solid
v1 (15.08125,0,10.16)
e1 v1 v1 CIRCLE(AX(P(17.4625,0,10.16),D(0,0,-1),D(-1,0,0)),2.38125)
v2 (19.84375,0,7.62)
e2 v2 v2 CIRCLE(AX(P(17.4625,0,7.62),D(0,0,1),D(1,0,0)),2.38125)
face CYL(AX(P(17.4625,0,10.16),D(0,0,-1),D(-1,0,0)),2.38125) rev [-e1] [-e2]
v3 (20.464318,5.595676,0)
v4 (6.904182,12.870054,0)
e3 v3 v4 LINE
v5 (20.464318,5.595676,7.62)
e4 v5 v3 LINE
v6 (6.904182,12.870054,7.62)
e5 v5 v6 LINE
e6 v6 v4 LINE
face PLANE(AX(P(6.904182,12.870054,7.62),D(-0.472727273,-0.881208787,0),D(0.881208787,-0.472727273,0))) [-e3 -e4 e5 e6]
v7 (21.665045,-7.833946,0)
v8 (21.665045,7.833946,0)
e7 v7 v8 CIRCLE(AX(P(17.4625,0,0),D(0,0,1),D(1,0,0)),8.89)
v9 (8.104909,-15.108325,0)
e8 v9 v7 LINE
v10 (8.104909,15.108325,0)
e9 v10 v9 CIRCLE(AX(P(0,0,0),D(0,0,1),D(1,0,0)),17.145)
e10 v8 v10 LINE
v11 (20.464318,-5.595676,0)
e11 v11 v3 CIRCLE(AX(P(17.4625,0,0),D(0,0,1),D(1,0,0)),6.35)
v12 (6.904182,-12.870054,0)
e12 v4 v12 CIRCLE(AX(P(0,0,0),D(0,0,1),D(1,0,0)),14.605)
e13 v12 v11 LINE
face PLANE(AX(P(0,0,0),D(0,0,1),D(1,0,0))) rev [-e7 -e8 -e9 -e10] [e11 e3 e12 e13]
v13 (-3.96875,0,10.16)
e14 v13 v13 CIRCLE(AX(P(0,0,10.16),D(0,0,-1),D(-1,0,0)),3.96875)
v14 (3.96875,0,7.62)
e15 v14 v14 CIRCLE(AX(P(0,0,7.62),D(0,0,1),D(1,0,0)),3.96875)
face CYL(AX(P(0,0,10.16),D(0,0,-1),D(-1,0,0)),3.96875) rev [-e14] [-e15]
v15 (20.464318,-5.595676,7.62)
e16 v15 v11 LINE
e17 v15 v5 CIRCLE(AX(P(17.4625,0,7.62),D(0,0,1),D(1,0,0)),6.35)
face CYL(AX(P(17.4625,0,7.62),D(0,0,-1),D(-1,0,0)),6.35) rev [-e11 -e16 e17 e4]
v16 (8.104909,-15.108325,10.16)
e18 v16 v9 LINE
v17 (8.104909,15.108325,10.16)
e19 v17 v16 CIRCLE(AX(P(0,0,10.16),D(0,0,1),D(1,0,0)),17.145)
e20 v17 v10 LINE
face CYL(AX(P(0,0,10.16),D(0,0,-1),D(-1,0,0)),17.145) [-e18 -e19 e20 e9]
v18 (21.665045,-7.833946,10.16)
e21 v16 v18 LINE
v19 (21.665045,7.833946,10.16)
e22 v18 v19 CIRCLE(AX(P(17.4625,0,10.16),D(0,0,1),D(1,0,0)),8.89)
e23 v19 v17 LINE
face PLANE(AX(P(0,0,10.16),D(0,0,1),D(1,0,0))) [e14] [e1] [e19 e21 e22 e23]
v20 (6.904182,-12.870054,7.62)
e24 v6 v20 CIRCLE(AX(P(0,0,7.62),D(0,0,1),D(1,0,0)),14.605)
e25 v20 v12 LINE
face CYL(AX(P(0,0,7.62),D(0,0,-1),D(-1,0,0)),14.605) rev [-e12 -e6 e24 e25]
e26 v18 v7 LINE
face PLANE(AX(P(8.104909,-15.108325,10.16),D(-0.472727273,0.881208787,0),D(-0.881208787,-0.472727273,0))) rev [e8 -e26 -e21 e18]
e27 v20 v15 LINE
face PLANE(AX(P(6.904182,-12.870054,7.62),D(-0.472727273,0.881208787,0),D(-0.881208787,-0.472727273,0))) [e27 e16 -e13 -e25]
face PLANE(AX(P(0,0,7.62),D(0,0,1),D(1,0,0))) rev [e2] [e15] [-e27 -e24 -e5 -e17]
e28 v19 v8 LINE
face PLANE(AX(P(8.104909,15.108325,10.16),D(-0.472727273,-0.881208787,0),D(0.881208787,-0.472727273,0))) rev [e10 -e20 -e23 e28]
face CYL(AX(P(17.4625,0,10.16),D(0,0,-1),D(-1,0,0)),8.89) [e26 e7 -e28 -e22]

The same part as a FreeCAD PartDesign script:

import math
import FreeCAD as App
import Part
import Sketcher
from FreeCAD import Vector
Q = App.Units.Quantity

doc = App.newDocument("Part")
body = doc.addObject("PartDesign::Body", "Body")

# Sketch on XY plane
sketch1 = doc.addObject("Sketcher::SketchObject", "Sketch")
body.addObject(sketch1)
sketch1.AttachmentSupport = (doc.XY_Plane, [""])
sketch1.MapMode = "FlatFace"
sketch1.addGeometry([
    Part.LineSegment(Vector(22, 8, 0), Vector(8, 15, 0)),
    Part.ArcOfCircle(Part.Circle(Vector(0, 0, 0), Vector(0, 0, 1), 17), math.radians(62), math.radians(298)),
    Part.LineSegment(Vector(8, -15, 0), Vector(22, -8, 0)),
    Part.ArcOfCircle(Part.Circle(Vector(17, 0, 0), Vector(0, 0, 1), 9), math.radians(-62), math.radians(62)),
], False)
sketch1.addConstraint([
    Sketcher.Constraint("Tangent", 0, 2, 1, 1),
    Sketcher.Constraint("Tangent", 1, 2, 2, 1),
    Sketcher.Constraint("Tangent", 2, 2, 3, 1),
    Sketcher.Constraint("Tangent", 3, 2, 0, 1),
    Sketcher.Constraint("Coincident", 1, 3, -1, 1),
    Sketcher.Constraint("PointOnObject", 3, 3, -1),
    Sketcher.Constraint("Radius", 3, Q("0.35 in")),
    Sketcher.Constraint("Radius", 1, Q("0.675 in")),
    Sketcher.Constraint("DistanceX", -1, 1, 3, 3, Q("0.6875 in")),
])
pad1 = doc.addObject("PartDesign::Pad", "Pad")
body.addObject(pad1)
pad1.Profile = sketch1
pad1.Length = Q("0.4 in")

# Sketch on XY plane
sketch2 = doc.addObject("Sketcher::SketchObject", "Sketch001")
body.addObject(sketch2)
sketch2.AttachmentSupport = (doc.XY_Plane, [""])
sketch2.MapMode = "FlatFace"
sketch2.addGeometry([
    Part.LineSegment(Vector(20, 6, 0), Vector(7, 13, 0)),
    Part.ArcOfCircle(Part.Circle(Vector(0, 0, 0), Vector(0, 0, 1), 15), math.radians(62), math.radians(298)),
    Part.LineSegment(Vector(7, -13, 0), Vector(20, -6, 0)),
    Part.ArcOfCircle(Part.Circle(Vector(17, 0, 0), Vector(0, 0, 1), 6), math.radians(-62), math.radians(62)),
], False)
sketch2.addConstraint([
    Sketcher.Constraint("Tangent", 0, 2, 1, 1),
    Sketcher.Constraint("Tangent", 1, 2, 2, 1),
    Sketcher.Constraint("Tangent", 2, 2, 3, 1),
    Sketcher.Constraint("Tangent", 3, 2, 0, 1),
    Sketcher.Constraint("Coincident", 1, 3, -1, 1),
    Sketcher.Constraint("PointOnObject", 3, 3, -1),
    Sketcher.Constraint("Radius", 3, Q("0.25 in")),
    Sketcher.Constraint("Radius", 1, Q("0.575 in")),
    Sketcher.Constraint("DistanceX", -1, 1, 3, 3, Q("0.6875 in")),
])
pocket1 = doc.addObject("PartDesign::Pocket", "Pocket")
body.addObject(pocket1)
pocket1.Profile = sketch2
pocket1.Length = Q("0.3 in")
pocket1.Reversed = True

# Sketch on XY plane
sketch3 = doc.addObject("Sketcher::SketchObject", "Sketch002")
body.addObject(sketch3)
sketch3.AttachmentSupport = (doc.XY_Plane, [""])
sketch3.MapMode = "FlatFace"
sketch3.AttachmentOffset = App.Placement(Vector(0, 0, 0.3 * 25.4), App.Rotation())
sketch3.addGeometry([
    Part.Circle(Vector(0, 0, 0), Vector(0, 0, 1), 4),
    Part.Circle(Vector(17.5, 0, 0), Vector(0, 0, 1), 2.4),
], False)
sketch3.addConstraint([
    Sketcher.Constraint("Coincident", 0, 3, -1, 1),
    Sketcher.Constraint("PointOnObject", 1, 3, -1),
    Sketcher.Constraint("Diameter", 0, Q("0.3125 in")),
    Sketcher.Constraint("Diameter", 1, Q("0.1875 in")),
    Sketcher.Constraint("DistanceX", -1, 1, 1, 3, Q("0.6875 in")),
])
pocket2 = doc.addObject("PartDesign::Pocket", "Pocket001")
body.addObject(pocket2)
pocket2.Profile = sketch3
pocket2.Type = "ThroughAll"
pocket2.Midplane = True

doc.recompute()
